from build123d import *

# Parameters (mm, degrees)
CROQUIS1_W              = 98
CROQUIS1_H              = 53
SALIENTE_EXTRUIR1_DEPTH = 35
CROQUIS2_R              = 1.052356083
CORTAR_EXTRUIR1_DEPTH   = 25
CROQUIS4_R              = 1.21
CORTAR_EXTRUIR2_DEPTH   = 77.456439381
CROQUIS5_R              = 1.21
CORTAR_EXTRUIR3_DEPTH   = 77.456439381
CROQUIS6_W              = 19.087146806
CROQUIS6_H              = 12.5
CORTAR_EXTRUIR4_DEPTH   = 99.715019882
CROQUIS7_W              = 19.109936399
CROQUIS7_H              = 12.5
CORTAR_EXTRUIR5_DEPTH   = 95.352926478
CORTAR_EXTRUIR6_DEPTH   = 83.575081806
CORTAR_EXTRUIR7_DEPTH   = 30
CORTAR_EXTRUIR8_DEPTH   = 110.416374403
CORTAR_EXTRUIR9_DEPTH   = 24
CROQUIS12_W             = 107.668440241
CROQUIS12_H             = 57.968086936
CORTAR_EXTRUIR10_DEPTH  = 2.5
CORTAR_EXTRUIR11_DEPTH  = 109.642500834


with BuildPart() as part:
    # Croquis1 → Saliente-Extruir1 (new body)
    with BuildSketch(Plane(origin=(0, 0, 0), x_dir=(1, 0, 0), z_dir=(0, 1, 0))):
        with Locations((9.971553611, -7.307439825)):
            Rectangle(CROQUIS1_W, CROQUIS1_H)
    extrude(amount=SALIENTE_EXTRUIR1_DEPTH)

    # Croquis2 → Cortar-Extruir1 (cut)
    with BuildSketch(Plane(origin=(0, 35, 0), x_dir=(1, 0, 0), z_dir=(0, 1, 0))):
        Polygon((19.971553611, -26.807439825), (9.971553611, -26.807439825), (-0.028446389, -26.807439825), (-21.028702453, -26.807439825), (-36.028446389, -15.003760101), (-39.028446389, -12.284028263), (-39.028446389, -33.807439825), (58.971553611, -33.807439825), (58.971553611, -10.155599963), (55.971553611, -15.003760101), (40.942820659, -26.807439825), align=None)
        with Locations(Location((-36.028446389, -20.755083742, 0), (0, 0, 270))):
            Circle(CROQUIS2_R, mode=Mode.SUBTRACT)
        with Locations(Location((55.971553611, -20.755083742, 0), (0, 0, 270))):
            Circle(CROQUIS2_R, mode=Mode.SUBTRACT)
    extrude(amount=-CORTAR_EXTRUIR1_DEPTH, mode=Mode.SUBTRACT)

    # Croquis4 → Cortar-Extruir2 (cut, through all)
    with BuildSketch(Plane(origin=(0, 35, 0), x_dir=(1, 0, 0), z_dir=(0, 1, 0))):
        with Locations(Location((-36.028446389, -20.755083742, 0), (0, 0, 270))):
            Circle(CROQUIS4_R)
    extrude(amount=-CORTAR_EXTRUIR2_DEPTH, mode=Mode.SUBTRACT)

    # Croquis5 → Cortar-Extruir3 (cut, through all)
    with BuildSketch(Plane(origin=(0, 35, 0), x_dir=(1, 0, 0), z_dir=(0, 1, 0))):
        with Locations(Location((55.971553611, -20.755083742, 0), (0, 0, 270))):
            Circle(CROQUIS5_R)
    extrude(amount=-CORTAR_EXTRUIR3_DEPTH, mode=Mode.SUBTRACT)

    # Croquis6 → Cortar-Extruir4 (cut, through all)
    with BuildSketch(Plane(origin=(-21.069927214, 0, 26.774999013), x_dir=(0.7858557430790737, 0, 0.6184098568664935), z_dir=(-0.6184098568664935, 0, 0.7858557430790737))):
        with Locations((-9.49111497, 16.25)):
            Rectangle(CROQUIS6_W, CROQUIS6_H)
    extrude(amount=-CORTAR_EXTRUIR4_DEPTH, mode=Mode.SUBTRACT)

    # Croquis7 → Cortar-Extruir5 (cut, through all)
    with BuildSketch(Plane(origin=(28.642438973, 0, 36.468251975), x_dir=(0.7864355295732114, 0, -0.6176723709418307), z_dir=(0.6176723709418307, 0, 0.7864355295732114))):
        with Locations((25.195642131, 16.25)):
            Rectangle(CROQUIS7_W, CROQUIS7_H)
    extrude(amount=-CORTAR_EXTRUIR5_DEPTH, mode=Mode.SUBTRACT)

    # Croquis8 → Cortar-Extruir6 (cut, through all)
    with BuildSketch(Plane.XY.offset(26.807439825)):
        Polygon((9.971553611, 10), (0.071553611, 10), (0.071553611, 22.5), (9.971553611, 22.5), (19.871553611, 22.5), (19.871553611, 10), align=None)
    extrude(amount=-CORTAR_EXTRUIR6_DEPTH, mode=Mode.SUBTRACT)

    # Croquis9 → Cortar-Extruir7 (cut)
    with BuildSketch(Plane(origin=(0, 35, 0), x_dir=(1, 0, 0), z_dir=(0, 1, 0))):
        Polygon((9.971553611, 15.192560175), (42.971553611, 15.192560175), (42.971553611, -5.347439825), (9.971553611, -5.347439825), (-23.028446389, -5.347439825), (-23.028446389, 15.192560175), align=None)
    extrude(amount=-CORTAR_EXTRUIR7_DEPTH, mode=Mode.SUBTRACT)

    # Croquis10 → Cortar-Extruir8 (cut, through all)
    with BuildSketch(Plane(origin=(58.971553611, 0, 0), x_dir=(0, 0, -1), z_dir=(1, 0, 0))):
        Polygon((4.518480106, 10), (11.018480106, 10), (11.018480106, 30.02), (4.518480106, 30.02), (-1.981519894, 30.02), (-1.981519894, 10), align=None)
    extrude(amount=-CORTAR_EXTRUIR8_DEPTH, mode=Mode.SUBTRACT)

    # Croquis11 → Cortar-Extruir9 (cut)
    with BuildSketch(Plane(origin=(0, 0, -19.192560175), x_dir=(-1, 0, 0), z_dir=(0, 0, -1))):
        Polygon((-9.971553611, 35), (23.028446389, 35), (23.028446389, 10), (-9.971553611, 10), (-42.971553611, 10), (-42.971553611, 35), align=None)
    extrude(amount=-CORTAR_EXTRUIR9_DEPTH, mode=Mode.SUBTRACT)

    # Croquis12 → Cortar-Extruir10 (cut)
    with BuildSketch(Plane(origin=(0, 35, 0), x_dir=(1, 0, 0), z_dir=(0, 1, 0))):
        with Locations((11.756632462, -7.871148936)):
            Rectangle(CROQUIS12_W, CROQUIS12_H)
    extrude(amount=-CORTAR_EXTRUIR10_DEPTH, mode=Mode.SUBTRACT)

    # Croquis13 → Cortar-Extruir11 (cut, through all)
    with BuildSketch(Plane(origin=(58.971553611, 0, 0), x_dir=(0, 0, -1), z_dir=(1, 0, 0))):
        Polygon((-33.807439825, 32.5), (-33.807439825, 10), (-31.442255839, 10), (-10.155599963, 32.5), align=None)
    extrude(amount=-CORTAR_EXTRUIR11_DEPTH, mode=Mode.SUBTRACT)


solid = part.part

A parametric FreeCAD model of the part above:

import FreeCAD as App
import Part
import Sketcher
Q = App.Units.Quantity

doc = App.newDocument("Part")
body = doc.addObject("PartDesign::Body", "Body")

# Sketch on XZ plane
sketch1 = body.newObject("Sketcher::SketchObject", "Sketch")
sketch1.AttachmentSupport = (doc.getObject("XZ_Plane"), [""])
sketch1.MapMode = "FlatFace"
sketch1.addGeometry(Part.LineSegment(App.Vector(-39, -19, 0), App.Vector(-39, 34, 0)), False)
sketch1.addGeometry(Part.LineSegment(App.Vector(-39, 34, 0), App.Vector(59, 34, 0)), False)
sketch1.addGeometry(Part.LineSegment(App.Vector(59, 34, 0), App.Vector(59, -19, 0)), False)
sketch1.addGeometry(Part.LineSegment(App.Vector(59, -19, 0), App.Vector(-39, -19, 0)), False)
sketch1.addConstraint(Sketcher.Constraint("Coincident", 0, 2, 1, 1))
sketch1.addConstraint(Sketcher.Constraint("Coincident", 1, 2, 2, 1))
sketch1.addConstraint(Sketcher.Constraint("Coincident", 2, 2, 3, 1))
sketch1.addConstraint(Sketcher.Constraint("Coincident", 3, 2, 0, 1))
sketch1.addConstraint(Sketcher.Constraint("Vertical", 0))
sketch1.addConstraint(Sketcher.Constraint("Horizontal", 1))
sketch1.addConstraint(Sketcher.Constraint("Vertical", 2))
sketch1.addConstraint(Sketcher.Constraint("Horizontal", 3))
sketch1.addConstraint(Sketcher.Constraint("DistanceX", 1, 1, 1, 2, Q("98 mm")))
sketch1.addConstraint(Sketcher.Constraint("DistanceY", 0, 1, 0, 2, Q("53 mm")))
sketch1.addConstraint(Sketcher.Constraint("DistanceY", -1, 1, 0, 2, Q("33.80744 mm")))
sketch1.addConstraint(Sketcher.Constraint("DistanceX", 0, 2, -1, 1, Q("39.028446 mm")))
pad1 = body.newObject("PartDesign::Pad", "Pad")
pad1.Profile = sketch1
pad1.Length = 35
pad1.Reversed = True

# Sketch on XZ plane
sketch2 = body.newObject("Sketcher::SketchObject", "Sketch001")
sketch2.AttachmentSupport = (doc.getObject("XZ_Plane"), [""])
sketch2.MapMode = "FlatFace"
sketch2.AttachmentOffset = App.Placement(App.Vector(0, 0, -35), App.Rotation())
sketch2.addGeometry(Part.LineSegment(App.Vector(-21, 26.8, 0), App.Vector(-36, 15, 0)), False)
sketch2.addGeometry(Part.LineSegment(App.Vector(-36, 15, 0), App.Vector(-39, 12.3, 0)), False)
sketch2.addGeometry(Part.LineSegment(App.Vector(-39, 12.3, 0), App.Vector(-39, 33.8, 0)), False)
sketch2.addGeometry(Part.LineSegment(App.Vector(-39, 33.8, 0), App.Vector(59, 33.8, 0)), False)
sketch2.addGeometry(Part.LineSegment(App.Vector(59, 33.8, 0), App.Vector(59, 10.2, 0)), False)
sketch2.addGeometry(Part.LineSegment(App.Vector(59, 10.2, 0), App.Vector(56, 15, 0)), False)
sketch2.addGeometry(Part.LineSegment(App.Vector(56, 15, 0), App.Vector(40.9, 26.8, 0)), False)
sketch2.addGeometry(Part.LineSegment(App.Vector(40.9, 26.8, 0), App.Vector(-21, 26.8, 0)), False)
sketch2.addGeometry(Part.Circle(App.Vector(-36, 20.8, 0), App.Vector(0, 0, 1), 1.1), False)
sketch2.addGeometry(Part.Circle(App.Vector(56, 20.8, 0), App.Vector(0, 0, 1), 1.1), False)
sketch2.addConstraint(Sketcher.Constraint("Coincident", 0, 2, 1, 1))
sketch2.addConstraint(Sketcher.Constraint("Coincident", 1, 2, 2, 1))
sketch2.addConstraint(Sketcher.Constraint("Coincident", 2, 2, 3, 1))
sketch2.addConstraint(Sketcher.Constraint("Coincident", 3, 2, 4, 1))
sketch2.addConstraint(Sketcher.Constraint("Coincident", 4, 2, 5, 1))
sketch2.addConstraint(Sketcher.Constraint("Coincident", 5, 2, 6, 1))
sketch2.addConstraint(Sketcher.Constraint("Coincident", 6, 2, 7, 1))
sketch2.addConstraint(Sketcher.Constraint("Coincident", 7, 2, 0, 1))
sketch2.addConstraint(Sketcher.Constraint("Vertical", 2))
sketch2.addConstraint(Sketcher.Constraint("Horizontal", 3))
sketch2.addConstraint(Sketcher.Constraint("Vertical", 4))
sketch2.addConstraint(Sketcher.Constraint("Horizontal", 7))
sketch2.addConstraint(Sketcher.Constraint("Equal", 8, 9))
sketch2.addConstraint(Sketcher.Constraint("Horizontal", 8, 3, 9, 3))
sketch2.addConstraint(Sketcher.Constraint("Horizontal", 0, 2, 5, 2))
sketch2.addConstraint(Sketcher.Constraint("Vertical", 8, 3, 0, 2))
sketch2.addConstraint(Sketcher.Constraint("Vertical", 9, 3, 5, 2))
sketch2.addConstraint(Sketcher.Constraint("DistanceX", 3, 1, 3, 2, Q("98 mm")))
sketch2.addConstraint(Sketcher.Constraint("DistanceX", 8, 3, 9, 3, Q("92 mm")))
sketch2.addConstraint(Sketcher.Constraint("DistanceX", 1, 2, 0, 2, Q("3 mm")))
sketch2.addConstraint(Sketcher.Constraint("DistanceY", 6, 2, 3, 2, Q("7 mm")))
sketch2.addConstraint(Sketcher.Constraint("Diameter", 8, Q("2.104712 mm")))
sketch2.addConstraint(Sketcher.Constraint("DistanceY", 2, 1, 2, 2, Q("21.523412 mm")))
sketch2.addConstraint(Sketcher.Constraint("DistanceY", 4, 2, 4, 1, Q("23.65184 mm")))
sketch2.addConstraint(Sketcher.Constraint("DistanceY", -1, 1, 4, 2, Q("10.1556 mm")))
sketch2.addConstraint(Sketcher.Constraint("DistanceX", 7, 2, 7, 1, Q("61.971523 mm")))
sketch2.addConstraint(Sketcher.Constraint("DistanceY", -1, 1, 0, 2, Q("15.00376 mm")))
sketch2.addConstraint(Sketcher.Constraint("DistanceX", -1, 1, 6, 2, Q("40.942821 mm")))
sketch2.addConstraint(Sketcher.Constraint("Distance", 0, Q("19.087147 mm")))
sketch2.addConstraint(Sketcher.Constraint("DistanceY", -1, 1, 8, 3, Q("20.755084 mm")))
pocket1 = body.newObject("PartDesign::Pocket", "Pocket")
pocket1.Profile = sketch2
pocket1.Length = 25
pocket1.Reversed = True

# Sketch on XZ plane
sketch3 = body.newObject("Sketcher::SketchObject", "Sketch002")
sketch3.AttachmentSupport = (doc.getObject("XZ_Plane"), [""])
sketch3.MapMode = "FlatFace"
sketch3.AttachmentOffset = App.Placement(App.Vector(0, 0, -35), App.Rotation())
sketch3.addGeometry(Part.Circle(App.Vector(-36, 20.8, 0), App.Vector(0, 0, 1), 1.2), False)
sketch3.addConstraint(Sketcher.Constraint("Diameter", 0, Q("2.42 mm")))
sketch3.addConstraint(Sketcher.Constraint("DistanceX", 0, 3, -1, 1, Q("36.028446 mm")))
sketch3.addConstraint(Sketcher.Constraint("DistanceY", -1, 1, 0, 3, Q("20.755084 mm")))
pocket2 = body.newObject("PartDesign::Pocket", "Pocket001")
pocket2.Profile = sketch3
pocket2.Type = "ThroughAll"
pocket2.Reversed = True

# Sketch on XZ plane
sketch4 = body.newObject("Sketcher::SketchObject", "Sketch003")
sketch4.AttachmentSupport = (doc.getObject("XZ_Plane"), [""])
sketch4.MapMode = "FlatFace"
sketch4.AttachmentOffset = App.Placement(App.Vector(0, 0, -35), App.Rotation())
sketch4.addGeometry(Part.Circle(App.Vector(56, 20.8, 0), App.Vector(0, 0, 1), 1.2), False)
sketch4.addConstraint(Sketcher.Constraint("Diameter", 0, Q("2.42 mm")))
sketch4.addConstraint(Sketcher.Constraint("DistanceX", -1, 1, 0, 3, Q("55.971554 mm")))
sketch4.addConstraint(Sketcher.Constraint("DistanceY", -1, 1, 0, 3, Q("20.755084 mm")))
pocket3 = body.newObject("PartDesign::Pocket", "Pocket002")
pocket3.Profile = sketch4
pocket3.Type = "ThroughAll"
pocket3.Reversed = True

# Sketch on an angled plane
sketch5 = body.newObject("Sketcher::SketchObject", "Sketch004")
sketch5.Placement = App.Placement(App.Vector(-21.069927, 0, 26.774999), App.Rotation(App.Vector(0.785855743, 0, 0.618409857), App.Vector(0, 1, 0), App.Vector(-0.618409857, 0, 0.785855743), "ZXY"))
sketch5.addGeometry(Part.LineSegment(App.Vector(-19, 23, 0), App.Vector(-19, 10, 0)), False)
sketch5.addGeometry(Part.LineSegment(App.Vector(-19, 10, 0), App.Vector(0, 10, 0)), False)
sketch5.addGeometry(Part.LineSegment(App.Vector(0, 10, 0), App.Vector(0, 23, 0)), False)
sketch5.addGeometry(Part.LineSegment(App.Vector(0, 23, 0), App.Vector(-19, 23, 0)), False)
sketch5.addConstraint(Sketcher.Constraint("Coincident", 0, 2, 1, 1))
sketch5.addConstraint(Sketcher.Constraint("Coincident", 1, 2, 2, 1))
sketch5.addConstraint(Sketcher.Constraint("Coincident", 2, 2, 3, 1))
sketch5.addConstraint(Sketcher.Constraint("Coincident", 3, 2, 0, 1))
sketch5.addConstraint(Sketcher.Constraint("Vertical", 0))
sketch5.addConstraint(Sketcher.Constraint("Horizontal", 1))
sketch5.addConstraint(Sketcher.Constraint("Vertical", 2))
sketch5.addConstraint(Sketcher.Constraint("Horizontal", 3))
sketch5.addConstraint(Sketcher.Constraint("DistanceY", 0, 2, 0, 1, Q("12.5 mm")))
sketch5.addConstraint(Sketcher.Constraint("DistanceY", -1, 1, 0, 2, Q("10 mm")))
sketch5.addConstraint(Sketcher.Constraint("DistanceX", 1, 1, 1, 2, Q("19.087147 mm")))
sketch5.addConstraint(Sketcher.Constraint("DistanceX", 0, 2, -1, 1, Q("19.034688 mm")))
pocket4 = body.newObject("PartDesign::Pocket", "Pocket003")
pocket4.Profile = sketch5
pocket4.Type = "ThroughAll"

# Sketch on an angled plane
sketch6 = body.newObject("Sketcher::SketchObject", "Sketch005")
sketch6.Placement = App.Placement(App.Vector(28.642439, 0, 36.468252), App.Rotation(App.Vector(0.78643553, 0, -0.617672371), App.Vector(0, 1.000000001, 0), App.Vector(0.617672371, 0, 0.78643553), "ZXY"))
sketch6.addGeometry(Part.LineSegment(App.Vector(16, 23, 0), App.Vector(16, 10, 0)), False)
sketch6.addGeometry(Part.LineSegment(App.Vector(16, 10, 0), App.Vector(35, 10, 0)), False)
sketch6.addGeometry(Part.LineSegment(App.Vector(35, 10, 0), App.Vector(35, 23, 0)), False)
sketch6.addGeometry(Part.LineSegment(App.Vector(35, 23, 0), App.Vector(16, 23, 0)), False)
sketch6.addConstraint(Sketcher.Constraint("Coincident", 0, 2, 1, 1))
sketch6.addConstraint(Sketcher.Constraint("Coincident", 1, 2, 2, 1))
sketch6.addConstraint(Sketcher.Constraint("Coincident", 2, 2, 3, 1))
sketch6.addConstraint(Sketcher.Constraint("Coincident", 3, 2, 0, 1))
sketch6.addConstraint(Sketcher.Constraint("Vertical", 0))
sketch6.addConstraint(Sketcher.Constraint("Horizontal", 1))
sketch6.addConstraint(Sketcher.Constraint("Vertical", 2))
sketch6.addConstraint(Sketcher.Constraint("Horizontal", 3))
sketch6.addConstraint(Sketcher.Constraint("DistanceY", 0, 2, 0, 1, Q("12.5 mm")))
sketch6.addConstraint(Sketcher.Constraint("DistanceY", -1, 1, 0, 2, Q("10 mm")))
sketch6.addConstraint(Sketcher.Constraint("DistanceX", 1, 1, 1, 2, Q("19.109936 mm")))
sketch6.addConstraint(Sketcher.Constraint("DistanceX", -1, 1, 1, 2, Q("34.75061 mm")))
pocket5 = body.newObject("PartDesign::Pocket", "Pocket004")
pocket5.Profile = sketch6
pocket5.Type = "ThroughAll"

# Sketch on XY plane
sketch7 = body.newObject("Sketcher::SketchObject", "Sketch006")
sketch7.AttachmentSupport = (doc.getObject("XY_Plane"), [""])
sketch7.MapMode = "FlatFace"
sketch7.AttachmentOffset = App.Placement(App.Vector(0, 0, 26.80744), App.Rotation())
sketch7.addGeometry(Part.LineSegment(App.Vector(0, 10, 0), App.Vector(20, 10, 0)), False)
sketch7.addGeometry(Part.LineSegment(App.Vector(20, 10, 0), App.Vector(20, 22, 0)), False)
sketch7.addGeometry(Part.LineSegment(App.Vector(20, 22, 0), App.Vector(0, 22, 0)), False)
sketch7.addGeometry(Part.LineSegment(App.Vector(0, 22, 0), App.Vector(0, 10, 0)), False)
sketch7.addConstraint(Sketcher.Constraint("Coincident", 0, 2, 1, 1))
sketch7.addConstraint(Sketcher.Constraint("Coincident", 1, 2, 2, 1))
sketch7.addConstraint(Sketcher.Constraint("Coincident", 2, 2, 3, 1))
sketch7.addConstraint(Sketcher.Constraint("Coincident", 3, 2, 0, 1))
sketch7.addConstraint(Sketcher.Constraint("Horizontal", 0))
sketch7.addConstraint(Sketcher.Constraint("Vertical", 1))
sketch7.addConstraint(Sketcher.Constraint("Horizontal", 2))
sketch7.addConstraint(Sketcher.Constraint("Vertical", 3))
sketch7.addConstraint(Sketcher.Constraint("DistanceX", 0, 1, 0, 2, Q("19.8 mm")))
sketch7.addConstraint(Sketcher.Constraint("DistanceY", 1, 1, 1, 2, Q("12.5 mm")))
sketch7.addConstraint(Sketcher.Constraint("DistanceY", -1, 1, 0, 2, Q("10 mm")))
sketch7.addConstraint(Sketcher.Constraint("DistanceX", -1, 1, 0, 2, Q("19.871554 mm")))
pocket6 = body.newObject("PartDesign::Pocket", "Pocket005")
pocket6.Profile = sketch7
pocket6.Type = "ThroughAll"

# Sketch on XZ plane
sketch8 = body.newObject("Sketcher::SketchObject", "Sketch007")
sketch8.AttachmentSupport = (doc.getObject("XZ_Plane"), [""])
sketch8.MapMode = "FlatFace"
sketch8.AttachmentOffset = App.Placement(App.Vector(0, 0, -35), App.Rotation())
sketch8.addGeometry(Part.LineSegment(App.Vector(43, -15, 0), App.Vector(-23, -15, 0)), False)
sketch8.addGeometry(Part.LineSegment(App.Vector(-23, -15, 0), App.Vector(-23, 5, 0)), False)
sketch8.addGeometry(Part.LineSegment(App.Vector(-23, 5, 0), App.Vector(43, 5, 0)), False)
sketch8.addGeometry(Part.LineSegment(App.Vector(43, 5, 0), App.Vector(43, -15, 0)), False)
sketch8.addConstraint(Sketcher.Constraint("Coincident", 0, 2, 1, 1))
sketch8.addConstraint(Sketcher.Constraint("Coincident", 1, 2, 2, 1))
sketch8.addConstraint(Sketcher.Constraint("Coincident", 2, 2, 3, 1))
sketch8.addConstraint(Sketcher.Constraint("Coincident", 3, 2, 0, 1))
sketch8.addConstraint(Sketcher.Constraint("Horizontal", 0))
sketch8.addConstraint(Sketcher.Constraint("Vertical", 1))
sketch8.addConstraint(Sketcher.Constraint("Horizontal", 2))
sketch8.addConstraint(Sketcher.Constraint("Vertical", 3))
sketch8.addConstraint(Sketcher.Constraint("DistanceX", 0, 2, 0, 1, Q("66 mm")))
sketch8.addConstraint(Sketcher.Constraint("DistanceY", 1, 1, 1, 2, Q("20.54 mm")))
sketch8.addConstraint(Sketcher.Constraint("DistanceY", 0, 2, -1, 1, Q("15.19256 mm")))
sketch8.addConstraint(Sketcher.Constraint("DistanceX", 0, 2, -1, 1, Q("23.028446 mm")))
pocket7 = body.newObject("PartDesign::Pocket", "Pocket006")
pocket7.Profile = sketch8
pocket7.Length = 30
pocket7.Reversed = True

# Sketch on YZ plane
sketch9 = body.newObject("Sketcher::SketchObject", "Sketch008")
sketch9.AttachmentSupport = (doc.getObject("YZ_Plane"), [""])
sketch9.MapMode = "FlatFace"
sketch9.AttachmentOffset = App.Placement(App.Vector(0, 0, 58.971554), App.Rotation())
sketch9.addGeometry(Part.LineSegment(App.Vector(10, -11, 0), App.Vector(30, -11, 0)), False)
sketch9.addGeometry(Part.LineSegment(App.Vector(30, -11, 0), App.Vector(30, 2, 0)), False)
sketch9.addGeometry(Part.LineSegment(App.Vector(30, 2, 0), App.Vector(10, 2, 0)), False)
sketch9.addGeometry(Part.LineSegment(App.Vector(10, 2, 0), App.Vector(10, -11, 0)), False)
sketch9.addConstraint(Sketcher.Constraint("Coincident", 0, 2, 1, 1))
sketch9.addConstraint(Sketcher.Constraint("Coincident", 1, 2, 2, 1))
sketch9.addConstraint(Sketcher.Constraint("Coincident", 2, 2, 3, 1))
sketch9.addConstraint(Sketcher.Constraint("Coincident", 3, 2, 0, 1))
sketch9.addConstraint(Sketcher.Constraint("Horizontal", 0))
sketch9.addConstraint(Sketcher.Constraint("Vertical", 1))
sketch9.addConstraint(Sketcher.Constraint("Horizontal", 2))
sketch9.addConstraint(Sketcher.Constraint("Vertical", 3))
sketch9.addConstraint(Sketcher.Constraint("DistanceY", 1, 1, 1, 2, Q("13 mm")))
sketch9.addConstraint(Sketcher.Constraint("DistanceX", -1, 1, 2, 2, Q("10 mm")))
sketch9.addConstraint(Sketcher.Constraint("DistanceX", 0, 1, 0, 2, Q("20.02 mm")))
sketch9.addConstraint(Sketcher.Constraint("DistanceY", 0, 2, -1, 1, Q("11.01848 mm")))
pocket8 = body.newObject("PartDesign::Pocket", "Pocket007")
pocket8.Profile = sketch9
pocket8.Type = "ThroughAll"

# Sketch on XY plane
sketch10 = body.newObject("Sketcher::SketchObject", "Sketch009")
sketch10.AttachmentSupport = (doc.getObject("XY_Plane"), [""])
sketch10.MapMode = "FlatFace"
sketch10.AttachmentOffset = App.Placement(App.Vector(0, 0, -19.19256), App.Rotation())
sketch10.addGeometry(Part.LineSegment(App.Vector(-23, 35, 0), App.Vector(43, 35, 0)), False)
sketch10.addGeometry(Part.LineSegment(App.Vector(43, 35, 0), App.Vector(43, 10, 0)), False)
sketch10.addGeometry(Part.LineSegment(App.Vector(43, 10, 0), App.Vector(-23, 10, 0)), False)
sketch10.addGeometry(Part.LineSegment(App.Vector(-23, 10, 0), App.Vector(-23, 35, 0)), False)
sketch10.addConstraint(Sketcher.Constraint("Coincident", 0, 2, 1, 1))
sketch10.addConstraint(Sketcher.Constraint("Coincident", 1, 2, 2, 1))
sketch10.addConstraint(Sketcher.Constraint("Coincident", 2, 2, 3, 1))
sketch10.addConstraint(Sketcher.Constraint("Coincident", 3, 2, 0, 1))
sketch10.addConstraint(Sketcher.Constraint("Horizontal", 0))
sketch10.addConstraint(Sketcher.Constraint("Vertical", 1))
sketch10.addConstraint(Sketcher.Constraint("Horizontal", 2))
sketch10.addConstraint(Sketcher.Constraint("Vertical", 3))
sketch10.addConstraint(Sketcher.Constraint("DistanceX", 0, 1, 0, 2, Q("66 mm")))
sketch10.addConstraint(Sketcher.Constraint("DistanceY", 1, 2, 1, 1, Q("25 mm")))
sketch10.addConstraint(Sketcher.Constraint("DistanceY", -1, 1, 0, 2, Q("35 mm")))
sketch10.addConstraint(Sketcher.Constraint("DistanceX", -1, 1, 0, 2, Q("42.971554 mm")))
pocket9 = body.newObject("PartDesign::Pocket", "Pocket008")
pocket9.Profile = sketch10
pocket9.Length = 24
pocket9.Reversed = True

# Sketch on XZ plane
sketch11 = body.newObject("Sketcher::SketchObject", "Sketch010")
sketch11.AttachmentSupport = (doc.getObject("XZ_Plane"), [""])
sketch11.MapMode = "FlatFace"
sketch11.AttachmentOffset = App.Placement(App.Vector(0, 0, -35), App.Rotation())
sketch11.addGeometry(Part.LineSegment(App.Vector(-42, -21, 0), App.Vector(-42, 37, 0)), False)
sketch11.addGeometry(Part.LineSegment(App.Vector(-42, 37, 0), App.Vector(66, 37, 0)), False)
sketch11.addGeometry(Part.LineSegment(App.Vector(66, 37, 0), App.Vector(66, -21, 0)), False)
sketch11.addGeometry(Part.LineSegment(App.Vector(66, -21, 0), App.Vector(-42, -21, 0)), False)
sketch11.addConstraint(Sketcher.Constraint("Coincident", 0, 2, 1, 1))
sketch11.addConstraint(Sketcher.Constraint("Coincident", 1, 2, 2, 1))
sketch11.addConstraint(Sketcher.Constraint("Coincident", 2, 2, 3, 1))
sketch11.addConstraint(Sketcher.Constraint("Coincident", 3, 2, 0, 1))
sketch11.addConstraint(Sketcher.Constraint("Vertical", 0))
sketch11.addConstraint(Sketcher.Constraint("Horizontal", 1))
sketch11.addConstraint(Sketcher.Constraint("Vertical", 2))
sketch11.addConstraint(Sketcher.Constraint("Horizontal", 3))
sketch11.addConstraint(Sketcher.Constraint("DistanceX", 1, 1, 1, 2, Q("107.66844 mm")))
sketch11.addConstraint(Sketcher.Constraint("DistanceY", 0, 1, 0, 2, Q("57.968087 mm")))
sketch11.addConstraint(Sketcher.Constraint("DistanceX", 0, 2, -1, 1, Q("42.077588 mm")))
sketch11.addConstraint(Sketcher.Constraint("DistanceY", -1, 1, 0, 2, Q("36.855192 mm")))
pocket10 = body.newObject("PartDesign::Pocket", "Pocket009")
pocket10.Profile = sketch11
pocket10.Length = 2.5
pocket10.Reversed = True

# Sketch on YZ plane
sketch12 = body.newObject("Sketcher::SketchObject", "Sketch011")
sketch12.AttachmentSupport = (doc.getObject("YZ_Plane"), [""])
sketch12.MapMode = "FlatFace"
sketch12.AttachmentOffset = App.Placement(App.Vector(0, 0, 58.971554), App.Rotation())
sketch12.addGeometry(Part.LineSegment(App.Vector(32.5, 33.8, 0), App.Vector(10, 33.8, 0)), False)
sketch12.addGeometry(Part.LineSegment(App.Vector(10, 33.8, 0), App.Vector(10, 31.4, 0)), False)
sketch12.addGeometry(Part.LineSegment(App.Vector(10, 31.4, 0), App.Vector(32.5, 10.2, 0)), False)
sketch12.addGeometry(Part.LineSegment(App.Vector(32.5, 10.2, 0), App.Vector(32.5, 33.8, 0)), False)
sketch12.addConstraint(Sketcher.Constraint("Coincident", 0, 2, 1, 1))
sketch12.addConstraint(Sketcher.Constraint("Coincident", 1, 2, 2, 1))
sketch12.addConstraint(Sketcher.Constraint("Coincident", 2, 2, 3, 1))
sketch12.addConstraint(Sketcher.Constraint("Coincident", 3, 2, 0, 1))
sketch12.addConstraint(Sketcher.Constraint("Horizontal", 0))
sketch12.addConstraint(Sketcher.Constraint("Vertical", 1))
sketch12.addConstraint(Sketcher.Constraint("Vertical", 3))
sketch12.addConstraint(Sketcher.Constraint("DistanceX", 0, 2, 0, 1, Q("22.5 mm")))
sketch12.addConstraint(Sketcher.Constraint("DistanceX", -1, 1, 0, 2, Q("10 mm")))
sketch12.addConstraint(Sketcher.Constraint("DistanceY", 3, 1, 3, 2, Q("23.65184 mm")))
sketch12.addConstraint(Sketcher.Constraint("DistanceY", -1, 1, 2, 2, Q("10.1556 mm")))
sketch12.addConstraint(Sketcher.Constraint("DistanceY", 1, 2, 1, 1, Q("2.365184 mm")))
pocket11 = body.newObject("PartDesign::Pocket", "Pocket010")
pocket11.Profile = sketch12
pocket11.Type = "ThroughAll"

doc.recompute()
